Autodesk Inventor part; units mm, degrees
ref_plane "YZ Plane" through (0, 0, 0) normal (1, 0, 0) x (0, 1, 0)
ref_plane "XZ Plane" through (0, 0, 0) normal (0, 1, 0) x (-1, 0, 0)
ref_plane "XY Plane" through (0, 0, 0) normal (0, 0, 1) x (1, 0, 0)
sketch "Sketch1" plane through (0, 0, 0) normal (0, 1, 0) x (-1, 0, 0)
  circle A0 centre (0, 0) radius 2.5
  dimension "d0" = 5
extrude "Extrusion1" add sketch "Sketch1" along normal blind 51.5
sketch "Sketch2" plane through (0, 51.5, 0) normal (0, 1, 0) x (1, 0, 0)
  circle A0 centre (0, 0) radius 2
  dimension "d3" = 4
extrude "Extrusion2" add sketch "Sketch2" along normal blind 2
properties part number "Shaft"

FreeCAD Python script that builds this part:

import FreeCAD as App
import Part
import Sketcher
from FreeCAD import Vector
Q = App.Units.Quantity

doc = App.newDocument("Part")
body = doc.addObject("PartDesign::Body", "Body")

# Sketch on XZ plane
sketch1 = doc.addObject("Sketcher::SketchObject", "Sketch")
body.addObject(sketch1)
sketch1.AttachmentSupport = (doc.XZ_Plane, [""])
sketch1.MapMode = "FlatFace"
sketch1.addGeometry(Part.Circle(Vector(0, 0, 0), Vector(0, 0, 1), 2.5), False)
sketch1.addConstraint(Sketcher.Constraint("Coincident", 0, 3, -1, 1))
sketch1.addConstraint(Sketcher.Constraint("Diameter", 0, Q("5 mm")))
pad1 = doc.addObject("PartDesign::Pad", "Pad")
body.addObject(pad1)
pad1.Profile = sketch1
pad1.Length = 51.5
pad1.Reversed = True

# Sketch on XZ plane
sketch2 = doc.addObject("Sketcher::SketchObject", "Sketch001")
body.addObject(sketch2)
sketch2.AttachmentSupport = (doc.XZ_Plane, [""])
sketch2.MapMode = "FlatFace"
sketch2.AttachmentOffset = App.Placement(Vector(0, 0, -51.5), App.Rotation())
sketch2.addGeometry(Part.Circle(Vector(0, 0, 0), Vector(0, 0, 1), 2), False)
sketch2.addConstraint(Sketcher.Constraint("Coincident", 0, 3, -1, 1))
sketch2.addConstraint(Sketcher.Constraint("Diameter", 0, Q("4 mm")))
pad2 = doc.addObject("PartDesign::Pad", "Pad001")
body.addObject(pad2)
pad2.Profile = sketch2
pad2.Length = 2
pad2.Reversed = True

doc.recompute()
